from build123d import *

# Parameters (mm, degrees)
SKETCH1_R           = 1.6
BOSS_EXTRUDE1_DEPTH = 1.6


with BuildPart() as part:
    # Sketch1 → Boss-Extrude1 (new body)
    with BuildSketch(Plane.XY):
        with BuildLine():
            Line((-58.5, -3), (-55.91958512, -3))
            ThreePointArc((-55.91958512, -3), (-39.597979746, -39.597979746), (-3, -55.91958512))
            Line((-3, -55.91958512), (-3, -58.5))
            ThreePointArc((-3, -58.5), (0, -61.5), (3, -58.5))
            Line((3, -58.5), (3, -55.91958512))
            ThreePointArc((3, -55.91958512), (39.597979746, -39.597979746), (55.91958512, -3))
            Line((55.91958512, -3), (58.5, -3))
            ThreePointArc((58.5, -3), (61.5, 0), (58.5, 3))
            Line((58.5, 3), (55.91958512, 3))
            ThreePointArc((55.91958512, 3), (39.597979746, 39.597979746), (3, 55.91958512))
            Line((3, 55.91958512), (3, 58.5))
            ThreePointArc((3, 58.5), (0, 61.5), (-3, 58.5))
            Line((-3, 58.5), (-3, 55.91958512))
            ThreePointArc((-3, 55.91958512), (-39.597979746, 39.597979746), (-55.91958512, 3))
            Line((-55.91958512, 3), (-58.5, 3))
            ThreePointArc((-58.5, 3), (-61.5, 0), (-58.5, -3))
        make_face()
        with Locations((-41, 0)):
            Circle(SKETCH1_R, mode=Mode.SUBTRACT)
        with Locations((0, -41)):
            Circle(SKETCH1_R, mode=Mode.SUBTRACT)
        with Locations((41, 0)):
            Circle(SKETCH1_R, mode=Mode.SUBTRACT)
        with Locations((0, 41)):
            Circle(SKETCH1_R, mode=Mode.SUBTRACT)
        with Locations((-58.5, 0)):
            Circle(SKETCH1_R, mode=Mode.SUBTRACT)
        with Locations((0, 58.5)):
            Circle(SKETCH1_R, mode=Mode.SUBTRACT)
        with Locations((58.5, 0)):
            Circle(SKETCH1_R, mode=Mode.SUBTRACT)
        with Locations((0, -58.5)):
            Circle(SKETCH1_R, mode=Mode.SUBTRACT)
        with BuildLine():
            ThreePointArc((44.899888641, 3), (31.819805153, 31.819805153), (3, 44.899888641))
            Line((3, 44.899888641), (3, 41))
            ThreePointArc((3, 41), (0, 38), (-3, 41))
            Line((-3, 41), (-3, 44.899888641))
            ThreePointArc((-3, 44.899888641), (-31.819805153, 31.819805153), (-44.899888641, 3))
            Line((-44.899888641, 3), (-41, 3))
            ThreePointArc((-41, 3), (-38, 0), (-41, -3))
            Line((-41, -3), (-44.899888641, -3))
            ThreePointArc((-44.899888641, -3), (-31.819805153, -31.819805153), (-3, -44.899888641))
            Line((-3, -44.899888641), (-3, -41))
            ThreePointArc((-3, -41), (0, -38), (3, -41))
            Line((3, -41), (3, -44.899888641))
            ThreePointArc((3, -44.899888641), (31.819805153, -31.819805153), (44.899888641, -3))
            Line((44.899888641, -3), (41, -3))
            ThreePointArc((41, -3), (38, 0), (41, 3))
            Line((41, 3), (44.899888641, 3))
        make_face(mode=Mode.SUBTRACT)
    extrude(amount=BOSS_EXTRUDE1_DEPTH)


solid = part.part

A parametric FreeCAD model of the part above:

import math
import FreeCAD as App
import Part
import Sketcher
from FreeCAD import Vector

doc = App.newDocument("Part")
body = doc.addObject("PartDesign::Body", "Body")

# Sketch on XY plane
sketch1 = doc.addObject("Sketcher::SketchObject", "Sketch")
body.addObject(sketch1)
sketch1.AttachmentSupport = (doc.XY_Plane, [""])
sketch1.MapMode = "FlatFace"
sketch1.addGeometry(Part.LineSegment(Vector(-58.5, -3, 0), Vector(-55.9, -3, 0)), False)
sketch1.addGeometry(Part.ArcOfCircle(Part.Circle(Vector(0, 0, 0), Vector(0, 0, 1), 56), math.radians(-177), math.radians(-93)), False)
sketch1.addGeometry(Part.LineSegment(Vector(-3, -55.9, 0), Vector(-3, -58.5, 0)), False)
sketch1.addGeometry(Part.ArcOfCircle(Part.Circle(Vector(0, -58.5, 0), Vector(0, 0, 1), 3), math.radians(180), math.radians(360)), False)
sketch1.addGeometry(Part.LineSegment(Vector(3, -58.5, 0), Vector(3, -55.9, 0)), False)
sketch1.addGeometry(Part.ArcOfCircle(Part.Circle(Vector(0, 0, 0), Vector(0, 0, 1), 56), math.radians(-87), math.radians(-3)), False)
sketch1.addGeometry(Part.LineSegment(Vector(55.9, -3, 0), Vector(58.5, -3, 0)), False)
sketch1.addGeometry(Part.ArcOfCircle(Part.Circle(Vector(58.5, 0, 0), Vector(0, 0, 1), 3), math.radians(-90), math.radians(90)), False)
sketch1.addGeometry(Part.LineSegment(Vector(58.5, 3, 0), Vector(55.9, 3, 0)), False)
sketch1.addGeometry(Part.ArcOfCircle(Part.Circle(Vector(0, 0, 0), Vector(0, 0, 1), 56), math.radians(3), math.radians(87)), False)
sketch1.addGeometry(Part.LineSegment(Vector(3, 55.9, 0), Vector(3, 58.5, 0)), False)
sketch1.addGeometry(Part.ArcOfCircle(Part.Circle(Vector(0, 58.5, 0), Vector(0, 0, 1), 3), math.radians(0), math.radians(180)), False)
sketch1.addGeometry(Part.LineSegment(Vector(-3, 58.5, 0), Vector(-3, 55.9, 0)), False)
sketch1.addGeometry(Part.ArcOfCircle(Part.Circle(Vector(0, 0, 0), Vector(0, 0, 1), 56), math.radians(93), math.radians(177)), False)
sketch1.addGeometry(Part.LineSegment(Vector(-55.9, 3, 0), Vector(-58.5, 3, 0)), False)
sketch1.addGeometry(Part.ArcOfCircle(Part.Circle(Vector(-58.5, 0, 0), Vector(0, 0, 1), 3), math.radians(90), math.radians(270)), False)
sketch1.addGeometry(Part.Circle(Vector(0, -58.5, 0), Vector(0, 0, 1), 1.6), False)
sketch1.addGeometry(Part.Circle(Vector(0, -41, 0), Vector(0, 0, 1), 1.6), False)
sketch1.addGeometry(Part.Circle(Vector(-58.5, 0, 0), Vector(0, 0, 1), 1.6), False)
sketch1.addGeometry(Part.Circle(Vector(-41, 0, 0), Vector(0, 0, 1), 1.6), False)
sketch1.addGeometry(Part.ArcOfCircle(Part.Circle(Vector(0, 0, 0), Vector(0, 0, 1), 45), math.radians(4), math.radians(86)), False)
sketch1.addGeometry(Part.LineSegment(Vector(44.9, 3, 0), Vector(41, 3, 0)), False)
sketch1.addGeometry(Part.ArcOfCircle(Part.Circle(Vector(41, 0, 0), Vector(0, 0, 1), 3), math.radians(90), math.radians(270)), False)
sketch1.addGeometry(Part.LineSegment(Vector(41, -3, 0), Vector(44.9, -3, 0)), False)
sketch1.addGeometry(Part.ArcOfCircle(Part.Circle(Vector(0, 0, 0), Vector(0, 0, 1), 45), math.radians(-86), math.radians(-4)), False)
sketch1.addGeometry(Part.LineSegment(Vector(3, -44.9, 0), Vector(3, -41, 0)), False)
sketch1.addGeometry(Part.ArcOfCircle(Part.Circle(Vector(0, -41, 0), Vector(0, 0, 1), 3), math.radians(0), math.radians(180)), False)
sketch1.addGeometry(Part.LineSegment(Vector(-3, -41, 0), Vector(-3, -44.9, 0)), False)
sketch1.addGeometry(Part.ArcOfCircle(Part.Circle(Vector(0, 0, 0), Vector(0, 0, 1), 45), math.radians(-176), math.radians(-94)), False)
sketch1.addGeometry(Part.LineSegment(Vector(-44.9, -3, 0), Vector(-41, -3, 0)), False)
sketch1.addGeometry(Part.ArcOfCircle(Part.Circle(Vector(-41, 0, 0), Vector(0, 0, 1), 3), math.radians(-90), math.radians(90)), False)
sketch1.addGeometry(Part.LineSegment(Vector(-41, 3, 0), Vector(-44.9, 3, 0)), False)
sketch1.addGeometry(Part.ArcOfCircle(Part.Circle(Vector(0, 0, 0), Vector(0, 0, 1), 45), math.radians(94), math.radians(176)), False)
sketch1.addGeometry(Part.LineSegment(Vector(-3, 44.9, 0), Vector(-3, 41, 0)), False)
sketch1.addGeometry(Part.ArcOfCircle(Part.Circle(Vector(0, 41, 0), Vector(0, 0, 1), 3), math.radians(180), math.radians(360)), False)
sketch1.addGeometry(Part.LineSegment(Vector(3, 41, 0), Vector(3, 44.9, 0)), False)
sketch1.addGeometry(Part.Circle(Vector(41, 0, 0), Vector(0, 0, 1), 1.6), False)
sketch1.addGeometry(Part.Circle(Vector(58.5, 0, 0), Vector(0, 0, 1), 1.6), False)
sketch1.addGeometry(Part.Circle(Vector(0, 41, 0), Vector(0, 0, 1), 1.6), False)
sketch1.addGeometry(Part.Circle(Vector(0, 58.5, 0), Vector(0, 0, 1), 1.6), False)
sketch1.addConstraint(Sketcher.Constraint("Coincident", 0, 2, 1, 1))
sketch1.addConstraint(Sketcher.Constraint("Coincident", 1, 2, 2, 1))
sketch1.addConstraint(Sketcher.Constraint("Tangent", 2, 2, 3, 1))
sketch1.addConstraint(Sketcher.Constraint("Tangent", 3, 2, 4, 1))
sketch1.addConstraint(Sketcher.Constraint("Coincident", 4, 2, 5, 1))
sketch1.addConstraint(Sketcher.Constraint("Coincident", 5, 2, 6, 1))
sketch1.addConstraint(Sketcher.Constraint("Tangent", 6, 2, 7, 1))
sketch1.addConstraint(Sketcher.Constraint("Tangent", 7, 2, 8, 1))
sketch1.addConstraint(Sketcher.Constraint("Coincident", 8, 2, 9, 1))
sketch1.addConstraint(Sketcher.Constraint("Coincident", 9, 2, 10, 1))
sketch1.addConstraint(Sketcher.Constraint("Tangent", 10, 2, 11, 1))
sketch1.addConstraint(Sketcher.Constraint("Tangent", 11, 2, 12, 1))
sketch1.addConstraint(Sketcher.Constraint("Coincident", 12, 2, 13, 1))
sketch1.addConstraint(Sketcher.Constraint("Coincident", 13, 2, 14, 1))
sketch1.addConstraint(Sketcher.Constraint("Tangent", 14, 2, 15, 1))
sketch1.addConstraint(Sketcher.Constraint("Tangent", 15, 2, 0, 1))
sketch1.addConstraint(Sketcher.Constraint("Coincident", 20, 1, 21, 1))
sketch1.addConstraint(Sketcher.Constraint("Tangent", 21, 2, 22, 1))
sketch1.addConstraint(Sketcher.Constraint("Tangent", 22, 2, 23, 1))
sketch1.addConstraint(Sketcher.Constraint("Coincident", 23, 2, 24, 2))
sketch1.addConstraint(Sketcher.Constraint("Coincident", 24, 1, 25, 1))
sketch1.addConstraint(Sketcher.Constraint("Tangent", 25, 2, 26, 1))
sketch1.addConstraint(Sketcher.Constraint("Tangent", 26, 2, 27, 1))
sketch1.addConstraint(Sketcher.Constraint("Coincident", 27, 2, 28, 2))
sketch1.addConstraint(Sketcher.Constraint("Coincident", 28, 1, 29, 1))
sketch1.addConstraint(Sketcher.Constraint("Tangent", 29, 2, 30, 1))
sketch1.addConstraint(Sketcher.Constraint("Tangent", 30, 2, 31, 1))
sketch1.addConstraint(Sketcher.Constraint("Coincident", 31, 2, 32, 2))
sketch1.addConstraint(Sketcher.Constraint("Coincident", 32, 1, 33, 1))
sketch1.addConstraint(Sketcher.Constraint("Tangent", 33, 2, 34, 1))
sketch1.addConstraint(Sketcher.Constraint("Tangent", 34, 2, 35, 1))
sketch1.addConstraint(Sketcher.Constraint("Coincident", 35, 2, 20, 2))
sketch1.addConstraint(Sketcher.Constraint("Horizontal", 0))
sketch1.addConstraint(Sketcher.Constraint("Vertical", 2))
sketch1.addConstraint(Sketcher.Constraint("Vertical", 4))
sketch1.addConstraint(Sketcher.Constraint("Horizontal", 6))
sketch1.addConstraint(Sketcher.Constraint("Horizontal", 8))
sketch1.addConstraint(Sketcher.Constraint("Vertical", 10))
sketch1.addConstraint(Sketcher.Constraint("Vertical", 12))
sketch1.addConstraint(Sketcher.Constraint("Horizontal", 14))
sketch1.addConstraint(Sketcher.Constraint("Horizontal", 21))
sketch1.addConstraint(Sketcher.Constraint("Horizontal", 23))
sketch1.addConstraint(Sketcher.Constraint("Vertical", 25))
sketch1.addConstraint(Sketcher.Constraint("Vertical", 27))
sketch1.addConstraint(Sketcher.Constraint("Horizontal", 29))
sketch1.addConstraint(Sketcher.Constraint("Horizontal", 31))
sketch1.addConstraint(Sketcher.Constraint("Vertical", 33))
sketch1.addConstraint(Sketcher.Constraint("Vertical", 35))
sketch1.addConstraint(Sketcher.Constraint("Coincident", 1, 3, -1, 1))
sketch1.addConstraint(Sketcher.Constraint("Coincident", 5, 3, -1, 1))
sketch1.addConstraint(Sketcher.Constraint("Coincident", 9, 3, -1, 1))
sketch1.addConstraint(Sketcher.Constraint("Coincident", 13, 3, -1, 1))
sketch1.addConstraint(Sketcher.Constraint("Coincident", 20, 3, -1, 1))
sketch1.addConstraint(Sketcher.Constraint("Coincident", 24, 3, -1, 1))
sketch1.addConstraint(Sketcher.Constraint("Coincident", 28, 3, -1, 1))
sketch1.addConstraint(Sketcher.Constraint("Coincident", 32, 3, -1, 1))
sketch1.addConstraint(Sketcher.Constraint("Coincident", 16, 3, 3, 3))
sketch1.addConstraint(Sketcher.Constraint("Coincident", 18, 3, 15, 3))
sketch1.addConstraint(Sketcher.Constraint("Coincident", 26, 3, 17, 3))
sketch1.addConstraint(Sketcher.Constraint("Coincident", 30, 3, 19, 3))
sketch1.addConstraint(Sketcher.Constraint("Coincident", 36, 3, 22, 3))
sketch1.addConstraint(Sketcher.Constraint("Coincident", 37, 3, 7, 3))
sketch1.addConstraint(Sketcher.Constraint("Coincident", 38, 3, 34, 3))
sketch1.addConstraint(Sketcher.Constraint("Coincident", 39, 3, 11, 3))
sketch1.addConstraint(Sketcher.Constraint("Equal", 1, 5))
sketch1.addConstraint(Sketcher.Constraint("Equal", 3, 7))
sketch1.addConstraint(Sketcher.Constraint("Equal", 5, 9))
sketch1.addConstraint(Sketcher.Constraint("Equal", 7, 11))
sketch1.addConstraint(Sketcher.Constraint("Equal", 9, 13))
sketch1.addConstraint(Sketcher.Constraint("Equal", 11, 15))
sketch1.addConstraint(Sketcher.Constraint("Equal", 16, 17))
sketch1.addConstraint(Sketcher.Constraint("Equal", 17, 18))
sketch1.addConstraint(Sketcher.Constraint("Equal", 18, 19))
sketch1.addConstraint(Sketcher.Constraint("Equal", 15, 22))
sketch1.addConstraint(Sketcher.Constraint("Equal", 20, 24))
sketch1.addConstraint(Sketcher.Constraint("Equal", 22, 26))
sketch1.addConstraint(Sketcher.Constraint("Equal", 24, 28))
sketch1.addConstraint(Sketcher.Constraint("Equal", 26, 30))
sketch1.addConstraint(Sketcher.Constraint("Equal", 28, 32))
sketch1.addConstraint(Sketcher.Constraint("Equal", 30, 34))
sketch1.addConstraint(Sketcher.Constraint("Equal", 19, 36))
sketch1.addConstraint(Sketcher.Constraint("Equal", 36, 37))
sketch1.addConstraint(Sketcher.Constraint("Equal", 37, 38))
sketch1.addConstraint(Sketcher.Constraint("Equal", 38, 39))
sketch1.addConstraint(Sketcher.Constraint("Symmetric", 3, 3, 11, 3, -1, 1))
sketch1.addConstraint(Sketcher.Constraint("Symmetric", 7, 3, 15, 3, -1, 1))
sketch1.addConstraint(Sketcher.Constraint("Symmetric", 19, 3, 22, 3, -1, 1))
sketch1.addConstraint(Sketcher.Constraint("Symmetric", 17, 3, 34, 3, -1, 1))
sketch1.addConstraint(Sketcher.Constraint("PointOnObject", 3, 3, -2))
sketch1.addConstraint(Sketcher.Constraint("PointOnObject", 7, 3, -1))
sketch1.addConstraint(Sketcher.Constraint("PointOnObject", 17, 3, -2))
sketch1.addConstraint(Sketcher.Constraint("PointOnObject", 19, 3, -1))
sketch1.addConstraint(Sketcher.Constraint("Equal", 14, 2))
sketch1.addConstraint(Sketcher.Constraint("Equal", 31, 25))
sketch1.addConstraint(Sketcher.Constraint("Radius", 1, 56.0))
sketch1.addConstraint(Sketcher.Constraint("Radius", 3, 3.0))
sketch1.addConstraint(Sketcher.Constraint("Radius", 20, 45.0))
sketch1.addConstraint(Sketcher.Constraint("Diameter", 16, 3.2))
sketch1.addConstraint(Sketcher.Constraint("DistanceY", 17, 3, -1, 1, 41.0))
sketch1.addConstraint(Sketcher.Constraint("DistanceY", 3, 3, 11, 3, 117.0))
pad1 = doc.addObject("PartDesign::Pad", "Pad")
body.addObject(pad1)
pad1.Profile = sketch1
pad1.Length = 1.6

doc.recompute()
